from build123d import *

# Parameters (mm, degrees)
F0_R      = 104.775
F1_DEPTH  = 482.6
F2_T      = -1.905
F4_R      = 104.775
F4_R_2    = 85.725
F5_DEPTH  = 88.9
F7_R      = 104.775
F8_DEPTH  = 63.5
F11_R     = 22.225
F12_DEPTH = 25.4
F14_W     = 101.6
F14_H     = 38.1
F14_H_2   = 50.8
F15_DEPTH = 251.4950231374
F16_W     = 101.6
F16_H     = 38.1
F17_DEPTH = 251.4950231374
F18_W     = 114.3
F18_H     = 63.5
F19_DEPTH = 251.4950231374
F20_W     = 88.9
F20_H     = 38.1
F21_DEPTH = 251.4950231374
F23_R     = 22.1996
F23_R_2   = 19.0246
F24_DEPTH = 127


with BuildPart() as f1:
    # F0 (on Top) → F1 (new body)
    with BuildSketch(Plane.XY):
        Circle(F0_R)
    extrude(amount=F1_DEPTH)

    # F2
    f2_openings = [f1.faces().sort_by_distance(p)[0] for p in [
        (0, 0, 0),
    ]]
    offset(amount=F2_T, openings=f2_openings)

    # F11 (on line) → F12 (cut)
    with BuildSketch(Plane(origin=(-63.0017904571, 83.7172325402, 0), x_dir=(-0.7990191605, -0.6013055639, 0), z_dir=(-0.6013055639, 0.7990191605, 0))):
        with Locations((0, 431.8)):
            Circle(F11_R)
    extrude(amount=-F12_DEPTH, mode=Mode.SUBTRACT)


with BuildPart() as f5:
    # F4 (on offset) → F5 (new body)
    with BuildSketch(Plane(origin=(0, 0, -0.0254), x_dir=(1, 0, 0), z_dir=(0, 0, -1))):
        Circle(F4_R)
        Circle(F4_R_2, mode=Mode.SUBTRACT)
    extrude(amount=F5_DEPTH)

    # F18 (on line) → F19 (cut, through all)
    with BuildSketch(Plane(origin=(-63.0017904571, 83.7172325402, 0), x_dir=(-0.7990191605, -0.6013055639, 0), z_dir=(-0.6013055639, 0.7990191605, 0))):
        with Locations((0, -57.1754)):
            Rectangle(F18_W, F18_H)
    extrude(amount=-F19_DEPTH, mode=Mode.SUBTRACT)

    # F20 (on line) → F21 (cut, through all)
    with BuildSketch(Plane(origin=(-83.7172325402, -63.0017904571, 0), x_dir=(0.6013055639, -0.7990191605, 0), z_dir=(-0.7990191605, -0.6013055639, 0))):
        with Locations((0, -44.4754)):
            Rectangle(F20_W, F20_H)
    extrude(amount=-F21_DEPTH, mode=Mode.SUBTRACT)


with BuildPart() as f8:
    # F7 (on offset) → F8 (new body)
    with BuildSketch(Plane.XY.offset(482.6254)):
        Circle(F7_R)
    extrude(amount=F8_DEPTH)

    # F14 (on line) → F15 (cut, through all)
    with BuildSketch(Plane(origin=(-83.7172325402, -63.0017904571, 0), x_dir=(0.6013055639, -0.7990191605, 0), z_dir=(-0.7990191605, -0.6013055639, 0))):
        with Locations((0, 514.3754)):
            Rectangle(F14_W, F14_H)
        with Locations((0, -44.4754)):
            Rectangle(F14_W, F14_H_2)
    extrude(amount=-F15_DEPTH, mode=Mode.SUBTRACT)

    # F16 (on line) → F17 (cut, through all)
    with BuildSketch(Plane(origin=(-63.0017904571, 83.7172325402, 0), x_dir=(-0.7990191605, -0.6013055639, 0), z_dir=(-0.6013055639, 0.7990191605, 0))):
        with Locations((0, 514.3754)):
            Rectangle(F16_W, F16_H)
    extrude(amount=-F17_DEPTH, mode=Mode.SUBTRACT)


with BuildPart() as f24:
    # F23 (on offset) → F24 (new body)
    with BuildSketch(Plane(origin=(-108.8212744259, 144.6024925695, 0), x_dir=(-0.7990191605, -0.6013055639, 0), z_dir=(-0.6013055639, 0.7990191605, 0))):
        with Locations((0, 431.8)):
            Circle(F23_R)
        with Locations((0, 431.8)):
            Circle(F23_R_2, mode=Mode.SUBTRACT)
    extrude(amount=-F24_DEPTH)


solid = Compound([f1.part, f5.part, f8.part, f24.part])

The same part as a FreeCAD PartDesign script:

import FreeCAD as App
import Part
import Sketcher
from FreeCAD import Vector
Q = App.Units.Quantity


def faces_at(feature, points):
    """Names of the faces that lie closest to the given points."""
    faces = feature.Shape.Faces
    near = lambda p: min(range(len(faces)), key=lambda i: faces[i].distToShape(Part.Vertex(*p))[0])
    return sorted({f"Face{near(p) + 1}" for p in points})

doc = App.newDocument("Part")
body = doc.addObject("PartDesign::Body", "Body")

sketch1 = body.newObject("Sketcher::SketchObject", "Sketch")
sketch1.AttachmentSupport = (doc.getObject("XY_Plane"), [""])
sketch1.MapMode = "FlatFace"
sketch1.addGeometry(Part.Circle(Vector(0, 0, 0), Vector(0, 0, 1), 105), False)
sketch1.addConstraint([
    Sketcher.Constraint("Coincident", 0, 3, -1, 1),
    Sketcher.Constraint("Diameter", 0, Q("8.25 in")),
])
pad1 = body.newObject("PartDesign::Pad", "Pad")
pad1.Profile = sketch1
pad1.Length = Q("19 in")
doc.recompute()

thickness = body.newObject("PartDesign::Thickness", "Thickness")
thickness.Base = (pad1, faces_at(pad1, [(0, 0, 0)]))
thickness.Value = Q("0.075 in")
thickness.Reversed = True
thickness.Join = "Arc"

sketch2 = body.newObject("Sketcher::SketchObject", "Sketch001")
sketch2.Placement = App.Placement(Vector(-63.00179, 83.717233, 0), App.Rotation(Vector(-0.79901916, -0.601305564, 0), Vector(0, 0, 0.999999999), Vector(-0.601305564, 0.79901916, 0), "ZXY"))
sketch2.addGeometry(Part.Circle(Vector(0, 432, 0), Vector(0, 0, 1), 22), False)
sketch2.addConstraint([
    Sketcher.Constraint("PointOnObject", 0, 3, -2),
    Sketcher.Constraint("Diameter", 0, Q("1.75 in")),
    Sketcher.Constraint("DistanceY", -1, 1, 0, 3, Q("17 in")),
])
pocket1 = body.newObject("PartDesign::Pocket", "Pocket")
pocket1.Profile = sketch2
pocket1.Length = Q("1 in")
body2 = doc.addObject("PartDesign::Body", "Body001")

sketch3 = body2.newObject("Sketcher::SketchObject", "Sketch002")
sketch3.AttachmentSupport = (doc.getObject("XY_Plane001"), [""])
sketch3.MapMode = "FlatFace"
sketch3.AttachmentOffset = App.Placement(Vector(0, 0, -0.001 * 25.4), App.Rotation())
sketch3.addGeometry([
    Part.Circle(Vector(0, 0, 0), Vector(0, 0, 1), 105),
    Part.Circle(Vector(0, 0, 0), Vector(0, 0, 1), 86),
], False)
sketch3.addConstraint([
    Sketcher.Constraint("Coincident", 0, 3, -1, 1),
    Sketcher.Constraint("Coincident", 1, 3, -1, 1),
    Sketcher.Constraint("Diameter", 0, Q("8.25 in")),
    Sketcher.Constraint("Diameter", 1, Q("6.75 in")),
])
pad2 = body2.newObject("PartDesign::Pad", "Pad001")
pad2.Profile = sketch3
pad2.Length = Q("3.5 in")
pad2.Reversed = True

sketch4 = body2.newObject("Sketcher::SketchObject", "Sketch003")
sketch4.Placement = App.Placement(Vector(-63.00179, 83.717233, 0), App.Rotation(Vector(-0.79901916, -0.601305564, 0), Vector(0, 0, 0.999999999), Vector(-0.601305564, 0.79901916, 0), "ZXY"))
sketch4.addGeometry([
    Part.LineSegment(Vector(-57, -25, 0), Vector(-57, -89, 0)),
    Part.LineSegment(Vector(-57, -89, 0), Vector(57, -89, 0)),
    Part.LineSegment(Vector(57, -89, 0), Vector(57, -25, 0)),
    Part.LineSegment(Vector(57, -25, 0), Vector(-57, -25, 0)),
], False)
sketch4.addConstraint([
    Sketcher.Constraint("Coincident", 0, 2, 1, 1),
    Sketcher.Constraint("Coincident", 1, 2, 2, 1),
    Sketcher.Constraint("Coincident", 2, 2, 3, 1),
    Sketcher.Constraint("Coincident", 3, 2, 0, 1),
    Sketcher.Constraint("Vertical", 0),
    Sketcher.Constraint("Horizontal", 1),
    Sketcher.Constraint("Vertical", 2),
    Sketcher.Constraint("Horizontal", 3),
    Sketcher.Constraint("DistanceX", 1, 1, 1, 2, Q("4.5 in")),
    Sketcher.Constraint("DistanceY", 0, 2, 0, 1, Q("2.5 in")),
    Sketcher.Constraint("DistanceX", 0, 2, -1, 1, Q("2.25 in")),
    Sketcher.Constraint("DistanceY", 0, 2, -1, 1, Q("3.501 in")),
])
pocket2 = body2.newObject("PartDesign::Pocket", "Pocket001")
pocket2.Profile = sketch4
pocket2.Type = "ThroughAll"

sketch5 = body2.newObject("Sketcher::SketchObject", "Sketch004")
sketch5.Placement = App.Placement(Vector(-83.717233, -63.00179, 0), App.Rotation(Vector(0.601305564, -0.79901916, 0), Vector(0, 0, 0.999999999), Vector(-0.79901916, -0.601305564, 0), "ZXY"))
sketch5.addGeometry([
    Part.LineSegment(Vector(-44, -25, 0), Vector(-44, -64, 0)),
    Part.LineSegment(Vector(-44, -64, 0), Vector(44, -64, 0)),
    Part.LineSegment(Vector(44, -64, 0), Vector(44, -25, 0)),
    Part.LineSegment(Vector(44, -25, 0), Vector(-44, -25, 0)),
], False)
sketch5.addConstraint([
    Sketcher.Constraint("Coincident", 0, 2, 1, 1),
    Sketcher.Constraint("Coincident", 1, 2, 2, 1),
    Sketcher.Constraint("Coincident", 2, 2, 3, 1),
    Sketcher.Constraint("Coincident", 3, 2, 0, 1),
    Sketcher.Constraint("Vertical", 0),
    Sketcher.Constraint("Horizontal", 1),
    Sketcher.Constraint("Vertical", 2),
    Sketcher.Constraint("Horizontal", 3),
    Sketcher.Constraint("DistanceX", 1, 1, 1, 2, Q("3.5 in")),
    Sketcher.Constraint("DistanceY", 0, 2, 0, 1, Q("1.5 in")),
    Sketcher.Constraint("DistanceX", 0, 2, -1, 1, Q("1.75 in")),
    Sketcher.Constraint("DistanceY", 0, 2, -1, 1, Q("2.501 in")),
])
pocket3 = body2.newObject("PartDesign::Pocket", "Pocket002")
pocket3.Profile = sketch5
pocket3.Type = "ThroughAll"
body3 = doc.addObject("PartDesign::Body", "Body002")

sketch6 = body3.newObject("Sketcher::SketchObject", "Sketch005")
sketch6.AttachmentSupport = (doc.getObject("XY_Plane002"), [""])
sketch6.MapMode = "FlatFace"
sketch6.AttachmentOffset = App.Placement(Vector(0, 0, 19.001 * 25.4), App.Rotation())
sketch6.addGeometry(Part.Circle(Vector(0, 0, 0), Vector(0, 0, 1), 105), False)
sketch6.addConstraint([
    Sketcher.Constraint("Coincident", 0, 3, -1, 1),
    Sketcher.Constraint("Diameter", 0, Q("8.25 in")),
])
pad3 = body3.newObject("PartDesign::Pad", "Pad002")
pad3.Profile = sketch6
pad3.Length = Q("2.5 in")

sketch7 = body3.newObject("Sketcher::SketchObject", "Sketch006")
sketch7.Placement = App.Placement(Vector(-83.717233, -63.00179, 0), App.Rotation(Vector(0.601305564, -0.79901916, 0), Vector(0, 0, 0.999999999), Vector(-0.79901916, -0.601305564, 0), "ZXY"))
sketch7.addGeometry([
    Part.LineSegment(Vector(-51, 533, 0), Vector(-51, 495, 0)),
    Part.LineSegment(Vector(-51, 495, 0), Vector(51, 495, 0)),
    Part.LineSegment(Vector(51, 495, 0), Vector(51, 533, 0)),
    Part.LineSegment(Vector(51, 533, 0), Vector(-51, 533, 0)),
    Part.LineSegment(Vector(-51, -19, 0), Vector(-51, -70, 0)),
    Part.LineSegment(Vector(-51, -70, 0), Vector(51, -70, 0)),
    Part.LineSegment(Vector(51, -70, 0), Vector(51, -19, 0)),
    Part.LineSegment(Vector(51, -19, 0), Vector(-51, -19, 0)),
], False)
sketch7.addConstraint([
    Sketcher.Constraint("Coincident", 0, 2, 1, 1),
    Sketcher.Constraint("Coincident", 1, 2, 2, 1),
    Sketcher.Constraint("Coincident", 2, 2, 3, 1),
    Sketcher.Constraint("Coincident", 3, 2, 0, 1),
    Sketcher.Constraint("Coincident", 4, 2, 5, 1),
    Sketcher.Constraint("Coincident", 5, 2, 6, 1),
    Sketcher.Constraint("Coincident", 6, 2, 7, 1),
    Sketcher.Constraint("Coincident", 7, 2, 4, 1),
    Sketcher.Constraint("Vertical", 0),
    Sketcher.Constraint("Horizontal", 1),
    Sketcher.Constraint("Vertical", 2),
    Sketcher.Constraint("Horizontal", 3),
    Sketcher.Constraint("Vertical", 4),
    Sketcher.Constraint("Horizontal", 5),
    Sketcher.Constraint("Vertical", 6),
    Sketcher.Constraint("Horizontal", 7),
    Sketcher.Constraint("Vertical", 3, 2, 4, 2),
    Sketcher.Constraint("Vertical", 2, 2, 5, 2),
    Sketcher.Constraint("DistanceX", 1, 1, 1, 2, Q("4 in")),
    Sketcher.Constraint("DistanceY", 4, 2, 4, 1, Q("2 in")),
    Sketcher.Constraint("DistanceY", 0, 2, 0, 1, Q("1.5 in")),
    Sketcher.Constraint("DistanceX", 0, 2, -1, 1, Q("2 in")),
    Sketcher.Constraint("DistanceY", -1, 1, 0, 2, Q("19.501 in")),
    Sketcher.Constraint("DistanceY", 4, 2, -1, 1, Q("2.751 in")),
])
pocket4 = body3.newObject("PartDesign::Pocket", "Pocket003")
pocket4.Profile = sketch7
pocket4.Type = "ThroughAll"

sketch8 = body3.newObject("Sketcher::SketchObject", "Sketch007")
sketch8.Placement = App.Placement(Vector(-63.00179, 83.717233, 0), App.Rotation(Vector(-0.79901916, -0.601305564, 0), Vector(0, 0, 0.999999999), Vector(-0.601305564, 0.79901916, 0), "ZXY"))
sketch8.addGeometry([
    Part.LineSegment(Vector(-51, 533, 0), Vector(-51, 495, 0)),
    Part.LineSegment(Vector(-51, 495, 0), Vector(51, 495, 0)),
    Part.LineSegment(Vector(51, 495, 0), Vector(51, 533, 0)),
    Part.LineSegment(Vector(51, 533, 0), Vector(-51, 533, 0)),
], False)
sketch8.addConstraint([
    Sketcher.Constraint("Coincident", 0, 2, 1, 1),
    Sketcher.Constraint("Coincident", 1, 2, 2, 1),
    Sketcher.Constraint("Coincident", 2, 2, 3, 1),
    Sketcher.Constraint("Coincident", 3, 2, 0, 1),
    Sketcher.Constraint("Vertical", 0),
    Sketcher.Constraint("Horizontal", 1),
    Sketcher.Constraint("Vertical", 2),
    Sketcher.Constraint("Horizontal", 3),
    Sketcher.Constraint("DistanceX", 1, 1, 1, 2, Q("4 in")),
    Sketcher.Constraint("DistanceY", 0, 2, 0, 1, Q("1.5 in")),
    Sketcher.Constraint("DistanceX", 0, 2, -1, 1, Q("2 in")),
    Sketcher.Constraint("DistanceY", -1, 1, 0, 2, Q("19.501 in")),
])
pocket5 = body3.newObject("PartDesign::Pocket", "Pocket004")
pocket5.Profile = sketch8
pocket5.Type = "ThroughAll"
body4 = doc.addObject("PartDesign::Body", "Body003")

sketch9 = body4.newObject("Sketcher::SketchObject", "Sketch008")
sketch9.Placement = App.Placement(Vector(-108.821274, 144.602493, 0), App.Rotation(Vector(-0.79901916, -0.601305564, 0), Vector(0, 0, 0.999999999), Vector(-0.601305564, 0.79901916, 0), "ZXY"))
sketch9.addGeometry([
    Part.Circle(Vector(0, 432, 0), Vector(0, 0, 1), 22),
    Part.Circle(Vector(0, 432, 0), Vector(0, 0, 1), 19),
], False)
sketch9.addConstraint([
    Sketcher.Constraint("Coincident", 1, 3, 0, 3),
    Sketcher.Constraint("PointOnObject", 0, 3, -2),
    Sketcher.Constraint("Diameter", 0, Q("1.748 in")),
    Sketcher.Constraint("Diameter", 1, Q("1.498 in")),
    Sketcher.Constraint("DistanceY", -1, 1, 0, 3, Q("17 in")),
])
pad4 = body4.newObject("PartDesign::Pad", "Pad003")
pad4.Profile = sketch9
pad4.Length = Q("5 in")
pad4.Reversed = True

doc.recompute()
